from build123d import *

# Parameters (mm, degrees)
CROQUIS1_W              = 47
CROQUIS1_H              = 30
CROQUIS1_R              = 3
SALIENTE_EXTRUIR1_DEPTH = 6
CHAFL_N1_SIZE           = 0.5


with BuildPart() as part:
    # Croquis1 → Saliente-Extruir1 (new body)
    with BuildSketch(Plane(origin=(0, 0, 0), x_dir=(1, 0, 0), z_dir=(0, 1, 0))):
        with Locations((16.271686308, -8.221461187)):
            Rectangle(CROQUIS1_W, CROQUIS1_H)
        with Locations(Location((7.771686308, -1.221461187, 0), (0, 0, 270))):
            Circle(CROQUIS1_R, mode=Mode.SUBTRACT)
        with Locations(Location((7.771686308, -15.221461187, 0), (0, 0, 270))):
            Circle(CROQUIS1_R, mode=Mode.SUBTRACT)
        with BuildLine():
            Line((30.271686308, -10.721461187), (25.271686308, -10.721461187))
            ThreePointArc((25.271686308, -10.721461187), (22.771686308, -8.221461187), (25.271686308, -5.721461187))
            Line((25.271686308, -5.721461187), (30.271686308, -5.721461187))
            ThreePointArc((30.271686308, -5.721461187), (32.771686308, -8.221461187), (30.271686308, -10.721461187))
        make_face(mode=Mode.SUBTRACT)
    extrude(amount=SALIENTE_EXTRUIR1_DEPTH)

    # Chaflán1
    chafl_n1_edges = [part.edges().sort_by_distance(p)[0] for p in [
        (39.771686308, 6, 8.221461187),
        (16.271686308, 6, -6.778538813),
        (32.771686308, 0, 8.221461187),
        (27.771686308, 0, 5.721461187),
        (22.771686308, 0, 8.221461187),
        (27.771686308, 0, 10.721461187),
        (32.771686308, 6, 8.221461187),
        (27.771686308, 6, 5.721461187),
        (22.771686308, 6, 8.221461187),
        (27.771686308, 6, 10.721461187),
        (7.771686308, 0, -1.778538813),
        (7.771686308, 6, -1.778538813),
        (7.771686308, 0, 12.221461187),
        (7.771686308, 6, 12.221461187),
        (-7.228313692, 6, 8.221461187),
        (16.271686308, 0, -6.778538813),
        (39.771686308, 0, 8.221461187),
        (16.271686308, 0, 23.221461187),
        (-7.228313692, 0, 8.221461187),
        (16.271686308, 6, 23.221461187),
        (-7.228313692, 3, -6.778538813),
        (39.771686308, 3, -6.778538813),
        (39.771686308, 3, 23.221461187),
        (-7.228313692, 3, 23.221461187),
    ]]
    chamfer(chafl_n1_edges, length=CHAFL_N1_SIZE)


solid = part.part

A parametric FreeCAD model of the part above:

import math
import FreeCAD as App
import Part
import Sketcher
from FreeCAD import Vector
Q = App.Units.Quantity


def add_polygon(sketch, points):
    """Adds a closed chain of lines whose ends are joined by coincident constraints."""
    first, n = sketch.GeometryCount, len(points)
    for a, b in zip(points, points[1:] + points[:1]):
        sketch.addGeometry(Part.LineSegment(App.Vector(*a, 0), App.Vector(*b, 0)), False)
    for i in range(n):
        sketch.addConstraint(Sketcher.Constraint("Coincident", first + i, 2, first + (i + 1) % n, 1))

doc = App.newDocument("Part")
params = doc.addObject("Spreadsheet::Sheet", "Params")
for row, (alias, value) in enumerate([
    ("sketch1_diameter", "6 mm"),
    ("sketch1_radius", "2.5 mm"),
    ("sketch1_width", "47 mm"),
    ("sketch1_width2", "5 mm"),
    ("sketch1_height", "30 mm"),
    ("pad1_length", "6 mm"),
    ("chamfer_size", "0.5 mm"),
], start=1):
    params.set(f"A{row}", alias)
    params.set(f"B{row}", "=" + value)
    params.setAlias(f"B{row}", alias)

body = doc.addObject("PartDesign::Body", "Body")

# Sketch on XZ plane
sketch1 = body.newObject("Sketcher::SketchObject", "Sketch")
sketch1.AttachmentSupport = (doc.getObject("XZ_Plane"), [""])
sketch1.MapMode = "FlatFace"
add_polygon(sketch1, [(-7.228314, -6.778539), (-7.228314, 23.221461), (39.771686, 23.221461), (39.771686, -6.778539)])  # lines 0-3
sketch1.addGeometry(Part.Circle(Vector(7.771686, 15.221461, 0), Vector(0, 0, 1), 3), False)  # 4
sketch1.addGeometry(Part.Circle(Vector(7.771686, 1.221461, 0), Vector(0, 0, 1), 3), False)  # 5
sketch1.addGeometry(Part.ArcOfCircle(Part.Circle(Vector(30.271686, 8.221461, 0), Vector(0, 0, 1), 2.5), math.radians(-90), math.radians(90)), False)  # 6
sketch1.addGeometry(Part.LineSegment(Vector(30.271686, 10.721461, 0), Vector(25.271686, 10.721461, 0)), False)  # 7
sketch1.addGeometry(Part.ArcOfCircle(Part.Circle(Vector(25.271686, 8.221461, 0), Vector(0, 0, 1), 2.5), math.radians(90), math.radians(270)), False)  # 8
sketch1.addGeometry(Part.LineSegment(Vector(25.271686, 5.721461, 0), Vector(30.271686, 5.721461, 0)), False)  # 9
sketch1.addConstraint([
    Sketcher.Constraint("Tangent", 6, 2, 7, 1),
    Sketcher.Constraint("Tangent", 7, 2, 8, 1),
    Sketcher.Constraint("Tangent", 8, 2, 9, 1),
    Sketcher.Constraint("Tangent", 9, 2, 6, 1),
    Sketcher.Constraint("Vertical", 0),
    Sketcher.Constraint("Horizontal", 1),
    Sketcher.Constraint("Vertical", 2),
    Sketcher.Constraint("Horizontal", 3),
    Sketcher.Constraint("Horizontal", 7),
    Sketcher.Constraint("Horizontal", 9),
    Sketcher.Constraint("Equal", 4, 5),
    Sketcher.Constraint("Vertical", 4, 3, 5, 3),
    Sketcher.Constraint("Diameter", 4, Q("6 mm")),
    Sketcher.Constraint("Radius", 6, Q("2.5 mm")),
    Sketcher.Constraint("DistanceX", 1, 1, 1, 2, Q("47 mm")),
    Sketcher.Constraint("DistanceX", 7, 2, 7, 1, Q("5 mm")),
    Sketcher.Constraint("DistanceY", 0, 1, 0, 2, Q("30 mm")),
    Sketcher.Constraint("DistanceY", 5, 3, 4, 3, Q("14 mm")),
    Sketcher.Constraint("DistanceY", 6, 3, 4, 3, Q("7 mm")),
    Sketcher.Constraint("DistanceX", 0, 2, 4, 3, Q("15 mm")),
    Sketcher.Constraint("DistanceY", 4, 3, 0, 2, Q("8 mm")),
    Sketcher.Constraint("DistanceX", 4, 3, 6, 3, Q("22.5 mm")),
    Sketcher.Constraint("DistanceY", -1, 1, 4, 3, Q("15.221461 mm")),
    Sketcher.Constraint("DistanceX", -1, 1, 4, 3, Q("7.771686 mm")),
])
sketch1.setExpression("Constraints[16]", "Params.sketch1_diameter")
sketch1.setExpression("Constraints[17]", "Params.sketch1_radius")
sketch1.setExpression("Constraints[18]", "Params.sketch1_width")
sketch1.setExpression("Constraints[19]", "Params.sketch1_width2")
sketch1.setExpression("Constraints[20]", "Params.sketch1_height")
pad1 = body.newObject("PartDesign::Pad", "Pad")
pad1.Profile = sketch1
pad1.setExpression("Length", "Params.pad1_length")
pad1.Reversed = True
doc.recompute()

chamfer = body.newObject("PartDesign::Chamfer", "Chamfer")
chamfer.Base = (pad1, ["Edge1"])
chamfer.UseAllEdges = True
chamfer.setExpression("Size", "Params.chamfer_size")

doc.recompute()
